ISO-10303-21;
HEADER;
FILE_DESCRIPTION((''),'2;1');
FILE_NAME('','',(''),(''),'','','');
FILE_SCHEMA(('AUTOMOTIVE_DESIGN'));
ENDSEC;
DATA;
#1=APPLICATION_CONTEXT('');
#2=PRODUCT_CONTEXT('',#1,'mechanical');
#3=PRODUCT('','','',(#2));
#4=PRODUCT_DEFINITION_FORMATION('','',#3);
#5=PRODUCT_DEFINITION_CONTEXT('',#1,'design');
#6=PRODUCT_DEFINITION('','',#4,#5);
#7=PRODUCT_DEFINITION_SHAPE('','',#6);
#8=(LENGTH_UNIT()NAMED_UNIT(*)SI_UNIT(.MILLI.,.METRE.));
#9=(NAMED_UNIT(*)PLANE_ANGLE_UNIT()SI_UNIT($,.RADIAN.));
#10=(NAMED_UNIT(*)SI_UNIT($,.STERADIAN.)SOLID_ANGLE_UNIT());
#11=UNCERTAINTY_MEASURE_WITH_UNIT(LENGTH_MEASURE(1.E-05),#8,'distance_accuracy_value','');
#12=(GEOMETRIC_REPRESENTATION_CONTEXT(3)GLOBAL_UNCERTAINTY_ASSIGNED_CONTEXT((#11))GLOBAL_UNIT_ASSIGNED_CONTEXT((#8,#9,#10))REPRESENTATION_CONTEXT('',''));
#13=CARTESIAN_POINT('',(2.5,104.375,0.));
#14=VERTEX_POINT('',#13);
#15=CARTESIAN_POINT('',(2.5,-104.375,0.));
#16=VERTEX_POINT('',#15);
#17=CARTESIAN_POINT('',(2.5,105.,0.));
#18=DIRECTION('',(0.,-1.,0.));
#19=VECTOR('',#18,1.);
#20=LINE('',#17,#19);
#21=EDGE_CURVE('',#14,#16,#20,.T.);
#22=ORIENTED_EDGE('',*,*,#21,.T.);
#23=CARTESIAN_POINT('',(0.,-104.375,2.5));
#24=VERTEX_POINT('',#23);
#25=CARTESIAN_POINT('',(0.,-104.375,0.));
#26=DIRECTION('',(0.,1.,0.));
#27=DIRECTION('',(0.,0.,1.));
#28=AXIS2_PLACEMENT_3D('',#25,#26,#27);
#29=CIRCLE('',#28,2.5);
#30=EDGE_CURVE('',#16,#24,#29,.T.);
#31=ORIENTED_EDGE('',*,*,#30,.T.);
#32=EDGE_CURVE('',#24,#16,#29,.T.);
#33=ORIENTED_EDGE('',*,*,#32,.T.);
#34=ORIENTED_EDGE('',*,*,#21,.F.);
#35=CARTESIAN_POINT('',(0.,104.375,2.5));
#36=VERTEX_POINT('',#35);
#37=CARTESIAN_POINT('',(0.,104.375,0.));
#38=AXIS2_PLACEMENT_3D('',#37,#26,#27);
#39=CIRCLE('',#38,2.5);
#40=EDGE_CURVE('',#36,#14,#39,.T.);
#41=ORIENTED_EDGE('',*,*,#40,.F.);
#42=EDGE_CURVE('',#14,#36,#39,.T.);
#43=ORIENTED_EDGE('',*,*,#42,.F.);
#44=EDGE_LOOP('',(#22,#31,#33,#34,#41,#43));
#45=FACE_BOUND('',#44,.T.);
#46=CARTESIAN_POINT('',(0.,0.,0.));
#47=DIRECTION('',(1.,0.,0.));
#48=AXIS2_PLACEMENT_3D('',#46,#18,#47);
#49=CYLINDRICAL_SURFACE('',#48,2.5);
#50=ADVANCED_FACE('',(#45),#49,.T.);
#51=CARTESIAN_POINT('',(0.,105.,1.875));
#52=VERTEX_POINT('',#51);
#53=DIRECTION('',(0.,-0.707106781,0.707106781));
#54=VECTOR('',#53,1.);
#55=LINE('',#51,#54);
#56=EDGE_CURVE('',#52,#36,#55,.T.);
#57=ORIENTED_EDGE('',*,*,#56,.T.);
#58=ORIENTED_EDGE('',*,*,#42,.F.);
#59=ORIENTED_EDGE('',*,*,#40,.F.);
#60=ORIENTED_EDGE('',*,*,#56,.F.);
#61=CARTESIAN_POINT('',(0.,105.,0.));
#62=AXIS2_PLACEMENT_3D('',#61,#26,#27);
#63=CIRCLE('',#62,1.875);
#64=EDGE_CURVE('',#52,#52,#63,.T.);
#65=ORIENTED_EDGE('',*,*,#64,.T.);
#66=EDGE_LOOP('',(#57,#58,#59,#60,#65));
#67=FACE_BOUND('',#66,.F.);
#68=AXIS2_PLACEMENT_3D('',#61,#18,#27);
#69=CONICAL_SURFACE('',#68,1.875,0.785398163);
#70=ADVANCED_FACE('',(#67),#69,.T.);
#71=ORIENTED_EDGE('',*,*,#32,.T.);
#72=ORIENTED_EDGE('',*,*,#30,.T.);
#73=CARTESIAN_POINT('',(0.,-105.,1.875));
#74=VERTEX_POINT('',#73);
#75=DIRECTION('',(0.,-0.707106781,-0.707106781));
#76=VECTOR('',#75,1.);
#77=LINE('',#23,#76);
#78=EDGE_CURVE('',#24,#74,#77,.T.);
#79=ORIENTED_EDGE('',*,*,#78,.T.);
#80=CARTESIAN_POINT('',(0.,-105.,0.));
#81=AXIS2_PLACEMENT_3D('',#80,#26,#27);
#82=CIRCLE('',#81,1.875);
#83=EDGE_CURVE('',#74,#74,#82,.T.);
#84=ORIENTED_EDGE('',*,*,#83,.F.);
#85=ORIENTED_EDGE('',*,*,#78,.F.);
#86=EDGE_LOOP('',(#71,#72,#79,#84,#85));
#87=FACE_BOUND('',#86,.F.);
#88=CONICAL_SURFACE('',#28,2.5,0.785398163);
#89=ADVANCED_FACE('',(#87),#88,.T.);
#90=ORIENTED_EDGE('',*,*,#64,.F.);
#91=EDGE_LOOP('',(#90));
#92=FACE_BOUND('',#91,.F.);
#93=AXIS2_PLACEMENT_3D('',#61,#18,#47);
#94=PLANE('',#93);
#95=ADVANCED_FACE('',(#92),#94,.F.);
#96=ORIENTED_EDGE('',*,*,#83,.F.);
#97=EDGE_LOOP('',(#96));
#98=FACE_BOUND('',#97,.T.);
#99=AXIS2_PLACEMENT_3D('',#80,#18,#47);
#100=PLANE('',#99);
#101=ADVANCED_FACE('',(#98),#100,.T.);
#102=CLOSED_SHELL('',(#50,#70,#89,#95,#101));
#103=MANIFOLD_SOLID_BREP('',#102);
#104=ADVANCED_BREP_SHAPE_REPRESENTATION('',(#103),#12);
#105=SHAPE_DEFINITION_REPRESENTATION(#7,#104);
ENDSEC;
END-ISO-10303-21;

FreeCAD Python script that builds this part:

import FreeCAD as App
import Part
import Sketcher
from FreeCAD import Vector


def add_polygon(sketch, points):
    """Adds a closed chain of lines whose ends are joined by coincident constraints."""
    first, n = sketch.GeometryCount, len(points)
    for a, b in zip(points, points[1:] + points[:1]):
        sketch.addGeometry(Part.LineSegment(App.Vector(*a, 0), App.Vector(*b, 0)), False)
    for i in range(n):
        sketch.addConstraint(Sketcher.Constraint("Coincident", first + i, 2, first + (i + 1) % n, 1))

doc = App.newDocument("Part")
body = doc.addObject("PartDesign::Body", "Body")

sketch1 = body.newObject("Sketcher::SketchObject", "Sketch")
sketch1.AttachmentSupport = (doc.getObject("XZ_Plane"), [""])
sketch1.MapMode = "FlatFace"
sketch1.addGeometry(Part.Circle(Vector(0, 0, 0), Vector(0, 0, 1), 2.5), False)
sketch1.addConstraint([
    Sketcher.Constraint("Coincident", 0, 3, -1, 1),
    Sketcher.Constraint("Diameter", 0, 5.0),
])
pad1 = body.newObject("PartDesign::Pad", "Pad")
pad1.Profile = sketch1
pad1.Length = 210
pad1.Midplane = True

sketch2 = body.newObject("Sketcher::SketchObject", "Sketch001")
sketch2.AttachmentSupport = (doc.getObject("YZ_Plane"), [""])
sketch2.MapMode = "FlatFace"
add_polygon(sketch2, [(105, 4.5), (-105, 4.5), (-105, 1.875), (-104.375, 2.5), (104.375, 2.5), (105, 1.875)])
sketch2.addConstraint([
    Sketcher.Constraint("Horizontal", 0),
    Sketcher.Constraint("Vertical", 1),
    Sketcher.Constraint("Horizontal", 3),
    Sketcher.Constraint("Vertical", 5),
    Sketcher.Constraint("Symmetric", 1, 2, 4, 2, -2),
    Sketcher.Constraint("Perpendicular", 2, 4),
    Sketcher.Constraint("Equal", 2, 4),
    Sketcher.Constraint("DistanceX", 0, 2, 0, 1, 210.0),
    Sketcher.Constraint("DistanceY", 2, 2, 0, 2, 2.0),
    Sketcher.Constraint("DistanceX", 3, 1, 3, 2, 208.75),
    Sketcher.Constraint("DistanceY", -1, 1, 0, 2, 4.5),
])
groove = body.newObject("PartDesign::Groove", "Groove")
groove.Profile = sketch2
groove.ReferenceAxis = (sketch2, ["H_Axis"])
groove.Angle = 360

doc.recompute()
